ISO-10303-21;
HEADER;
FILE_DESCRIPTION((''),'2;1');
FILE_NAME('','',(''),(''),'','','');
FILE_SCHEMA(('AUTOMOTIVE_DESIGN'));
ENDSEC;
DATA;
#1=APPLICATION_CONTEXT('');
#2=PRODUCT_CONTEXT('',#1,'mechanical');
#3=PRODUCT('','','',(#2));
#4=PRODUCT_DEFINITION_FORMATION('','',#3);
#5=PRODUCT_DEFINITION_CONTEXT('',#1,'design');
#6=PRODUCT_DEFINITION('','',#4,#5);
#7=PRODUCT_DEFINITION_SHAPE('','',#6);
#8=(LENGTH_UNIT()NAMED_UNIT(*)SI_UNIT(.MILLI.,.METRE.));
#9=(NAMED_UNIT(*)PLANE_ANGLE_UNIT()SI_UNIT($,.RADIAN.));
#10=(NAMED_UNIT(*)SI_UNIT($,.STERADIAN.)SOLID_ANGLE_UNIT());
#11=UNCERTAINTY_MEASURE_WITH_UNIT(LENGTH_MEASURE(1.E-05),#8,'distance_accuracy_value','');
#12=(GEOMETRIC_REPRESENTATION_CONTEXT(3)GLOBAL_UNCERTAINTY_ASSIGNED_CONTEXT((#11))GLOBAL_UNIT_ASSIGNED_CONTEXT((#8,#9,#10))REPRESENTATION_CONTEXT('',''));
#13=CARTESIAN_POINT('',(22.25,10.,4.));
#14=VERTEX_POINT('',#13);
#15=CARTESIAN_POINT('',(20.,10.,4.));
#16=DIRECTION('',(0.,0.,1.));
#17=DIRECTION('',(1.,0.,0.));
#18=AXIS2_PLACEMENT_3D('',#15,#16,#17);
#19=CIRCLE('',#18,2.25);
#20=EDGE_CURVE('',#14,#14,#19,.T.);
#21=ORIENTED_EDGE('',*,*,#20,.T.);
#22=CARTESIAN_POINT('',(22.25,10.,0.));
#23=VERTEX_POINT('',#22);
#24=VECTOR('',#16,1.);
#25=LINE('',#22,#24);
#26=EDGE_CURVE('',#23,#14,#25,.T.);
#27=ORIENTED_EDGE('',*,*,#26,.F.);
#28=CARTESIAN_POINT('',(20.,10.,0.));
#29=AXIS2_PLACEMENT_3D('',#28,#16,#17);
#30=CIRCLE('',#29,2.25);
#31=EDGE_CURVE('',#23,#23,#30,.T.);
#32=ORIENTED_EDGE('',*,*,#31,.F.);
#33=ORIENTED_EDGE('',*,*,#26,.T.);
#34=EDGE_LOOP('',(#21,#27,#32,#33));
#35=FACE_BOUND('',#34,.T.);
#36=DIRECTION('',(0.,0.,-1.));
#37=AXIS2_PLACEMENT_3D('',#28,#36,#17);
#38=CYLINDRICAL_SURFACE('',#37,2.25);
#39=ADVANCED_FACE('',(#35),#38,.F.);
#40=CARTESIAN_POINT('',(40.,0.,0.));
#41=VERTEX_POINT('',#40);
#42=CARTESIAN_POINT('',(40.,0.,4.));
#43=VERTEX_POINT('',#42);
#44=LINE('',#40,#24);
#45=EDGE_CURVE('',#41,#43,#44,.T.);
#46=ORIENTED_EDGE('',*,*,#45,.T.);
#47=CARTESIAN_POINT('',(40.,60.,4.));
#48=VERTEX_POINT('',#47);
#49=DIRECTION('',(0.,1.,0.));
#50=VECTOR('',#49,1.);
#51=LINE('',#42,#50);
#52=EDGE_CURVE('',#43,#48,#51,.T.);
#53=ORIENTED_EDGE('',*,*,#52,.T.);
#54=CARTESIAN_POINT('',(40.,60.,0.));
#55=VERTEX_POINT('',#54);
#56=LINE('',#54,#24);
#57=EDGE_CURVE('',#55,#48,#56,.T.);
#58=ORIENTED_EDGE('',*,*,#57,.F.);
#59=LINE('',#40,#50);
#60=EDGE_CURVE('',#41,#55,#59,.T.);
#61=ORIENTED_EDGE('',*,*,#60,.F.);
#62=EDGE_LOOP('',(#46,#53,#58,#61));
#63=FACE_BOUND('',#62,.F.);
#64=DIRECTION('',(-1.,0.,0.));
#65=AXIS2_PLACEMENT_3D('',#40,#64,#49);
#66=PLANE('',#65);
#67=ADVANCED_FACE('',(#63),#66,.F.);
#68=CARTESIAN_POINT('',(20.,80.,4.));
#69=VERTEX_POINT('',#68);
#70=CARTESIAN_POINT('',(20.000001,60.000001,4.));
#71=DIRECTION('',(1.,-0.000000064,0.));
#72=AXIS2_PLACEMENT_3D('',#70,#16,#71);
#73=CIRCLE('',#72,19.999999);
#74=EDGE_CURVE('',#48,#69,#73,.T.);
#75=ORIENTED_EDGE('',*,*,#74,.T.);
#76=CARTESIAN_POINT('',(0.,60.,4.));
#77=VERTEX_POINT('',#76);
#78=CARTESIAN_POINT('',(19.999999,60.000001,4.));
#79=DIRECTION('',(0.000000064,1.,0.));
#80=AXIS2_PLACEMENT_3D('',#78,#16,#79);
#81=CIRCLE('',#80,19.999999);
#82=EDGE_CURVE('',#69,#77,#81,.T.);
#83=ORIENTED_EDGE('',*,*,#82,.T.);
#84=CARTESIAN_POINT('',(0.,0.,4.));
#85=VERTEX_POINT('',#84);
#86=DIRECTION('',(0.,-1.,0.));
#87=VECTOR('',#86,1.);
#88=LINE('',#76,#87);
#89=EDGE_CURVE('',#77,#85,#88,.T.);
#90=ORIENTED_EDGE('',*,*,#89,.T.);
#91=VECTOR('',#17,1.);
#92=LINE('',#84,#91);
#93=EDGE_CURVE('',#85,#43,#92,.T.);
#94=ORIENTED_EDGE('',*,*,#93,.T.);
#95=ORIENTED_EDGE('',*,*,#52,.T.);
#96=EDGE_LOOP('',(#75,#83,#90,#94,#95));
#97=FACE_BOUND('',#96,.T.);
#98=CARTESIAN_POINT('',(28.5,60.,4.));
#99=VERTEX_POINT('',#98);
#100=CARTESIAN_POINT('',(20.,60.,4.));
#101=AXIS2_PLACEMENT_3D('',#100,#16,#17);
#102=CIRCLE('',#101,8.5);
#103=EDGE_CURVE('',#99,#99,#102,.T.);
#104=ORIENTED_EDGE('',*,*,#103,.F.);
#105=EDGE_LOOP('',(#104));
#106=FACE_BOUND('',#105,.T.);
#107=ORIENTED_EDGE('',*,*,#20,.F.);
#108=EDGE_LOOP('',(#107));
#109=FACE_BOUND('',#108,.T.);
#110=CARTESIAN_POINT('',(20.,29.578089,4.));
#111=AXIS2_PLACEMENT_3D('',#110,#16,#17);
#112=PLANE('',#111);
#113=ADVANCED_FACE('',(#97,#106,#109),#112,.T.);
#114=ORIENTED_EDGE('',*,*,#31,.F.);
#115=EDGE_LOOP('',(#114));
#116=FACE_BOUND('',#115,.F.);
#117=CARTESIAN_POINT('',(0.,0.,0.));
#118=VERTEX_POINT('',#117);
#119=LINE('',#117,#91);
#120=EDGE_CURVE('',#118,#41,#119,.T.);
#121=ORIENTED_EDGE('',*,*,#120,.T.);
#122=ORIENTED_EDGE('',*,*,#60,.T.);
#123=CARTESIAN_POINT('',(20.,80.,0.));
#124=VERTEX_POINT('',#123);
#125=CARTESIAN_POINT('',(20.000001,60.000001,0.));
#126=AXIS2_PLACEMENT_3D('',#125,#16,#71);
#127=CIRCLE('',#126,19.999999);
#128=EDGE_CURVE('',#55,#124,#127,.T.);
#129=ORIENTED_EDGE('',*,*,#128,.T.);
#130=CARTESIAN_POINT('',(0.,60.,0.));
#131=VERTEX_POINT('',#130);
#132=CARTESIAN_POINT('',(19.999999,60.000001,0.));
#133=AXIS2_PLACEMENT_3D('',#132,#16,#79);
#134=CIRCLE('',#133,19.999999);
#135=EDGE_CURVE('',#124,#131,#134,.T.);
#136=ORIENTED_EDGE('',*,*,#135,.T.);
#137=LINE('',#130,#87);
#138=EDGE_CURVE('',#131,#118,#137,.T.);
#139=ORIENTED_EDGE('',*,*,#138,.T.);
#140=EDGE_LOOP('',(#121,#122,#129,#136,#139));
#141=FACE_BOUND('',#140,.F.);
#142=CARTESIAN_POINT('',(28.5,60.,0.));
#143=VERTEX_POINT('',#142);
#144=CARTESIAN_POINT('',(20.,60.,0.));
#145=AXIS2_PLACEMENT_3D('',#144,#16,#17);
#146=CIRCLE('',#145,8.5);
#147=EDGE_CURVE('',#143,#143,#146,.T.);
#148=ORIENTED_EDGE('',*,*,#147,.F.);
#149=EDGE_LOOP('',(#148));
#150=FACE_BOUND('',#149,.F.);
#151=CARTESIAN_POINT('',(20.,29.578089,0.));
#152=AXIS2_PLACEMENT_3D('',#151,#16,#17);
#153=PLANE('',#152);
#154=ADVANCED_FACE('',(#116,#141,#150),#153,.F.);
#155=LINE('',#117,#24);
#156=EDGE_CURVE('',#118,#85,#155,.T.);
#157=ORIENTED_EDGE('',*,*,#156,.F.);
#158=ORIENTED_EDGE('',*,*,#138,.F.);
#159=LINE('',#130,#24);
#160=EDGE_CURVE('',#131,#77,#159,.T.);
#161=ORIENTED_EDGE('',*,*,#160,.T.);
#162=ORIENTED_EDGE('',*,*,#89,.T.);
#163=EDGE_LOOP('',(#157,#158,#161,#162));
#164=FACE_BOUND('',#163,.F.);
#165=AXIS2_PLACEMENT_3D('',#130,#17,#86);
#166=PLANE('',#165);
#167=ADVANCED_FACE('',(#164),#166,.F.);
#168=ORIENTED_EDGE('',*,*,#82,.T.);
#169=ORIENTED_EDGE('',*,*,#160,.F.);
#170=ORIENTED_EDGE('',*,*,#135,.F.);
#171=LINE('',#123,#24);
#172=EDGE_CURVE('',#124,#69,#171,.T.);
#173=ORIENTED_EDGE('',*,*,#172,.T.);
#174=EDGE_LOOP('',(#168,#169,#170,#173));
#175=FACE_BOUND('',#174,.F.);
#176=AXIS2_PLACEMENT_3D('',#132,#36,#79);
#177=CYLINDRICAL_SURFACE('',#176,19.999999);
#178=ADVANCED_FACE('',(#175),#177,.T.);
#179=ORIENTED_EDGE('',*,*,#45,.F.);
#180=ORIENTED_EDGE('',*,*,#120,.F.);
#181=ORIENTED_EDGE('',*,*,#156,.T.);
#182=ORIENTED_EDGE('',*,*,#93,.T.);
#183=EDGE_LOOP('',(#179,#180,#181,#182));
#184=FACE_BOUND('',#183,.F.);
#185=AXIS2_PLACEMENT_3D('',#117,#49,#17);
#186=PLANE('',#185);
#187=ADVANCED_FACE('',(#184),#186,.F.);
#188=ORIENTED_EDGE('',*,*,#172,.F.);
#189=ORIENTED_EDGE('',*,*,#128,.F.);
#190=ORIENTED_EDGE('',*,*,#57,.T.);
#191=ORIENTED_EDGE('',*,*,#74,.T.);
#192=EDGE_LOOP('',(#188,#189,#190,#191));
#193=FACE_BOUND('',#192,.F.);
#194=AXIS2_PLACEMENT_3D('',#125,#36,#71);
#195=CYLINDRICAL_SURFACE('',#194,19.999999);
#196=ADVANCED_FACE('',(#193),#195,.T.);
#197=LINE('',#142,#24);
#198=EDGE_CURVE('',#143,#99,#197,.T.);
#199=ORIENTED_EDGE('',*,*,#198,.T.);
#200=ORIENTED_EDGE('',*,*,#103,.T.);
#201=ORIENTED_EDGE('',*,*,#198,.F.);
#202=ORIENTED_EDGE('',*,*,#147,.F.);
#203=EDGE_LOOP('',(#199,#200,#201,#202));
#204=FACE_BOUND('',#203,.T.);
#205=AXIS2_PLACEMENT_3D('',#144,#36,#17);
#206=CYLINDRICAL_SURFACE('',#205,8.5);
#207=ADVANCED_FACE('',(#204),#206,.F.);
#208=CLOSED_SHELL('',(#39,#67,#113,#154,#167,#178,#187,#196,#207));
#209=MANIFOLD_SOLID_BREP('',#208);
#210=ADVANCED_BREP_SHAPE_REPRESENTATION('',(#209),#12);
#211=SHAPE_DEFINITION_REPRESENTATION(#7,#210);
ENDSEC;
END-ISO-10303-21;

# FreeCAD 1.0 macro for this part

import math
import FreeCAD as App
import Part
import Sketcher
Q = App.Units.Quantity

doc = App.newDocument("Part")
body = doc.addObject("PartDesign::Body", "Body")

sketch1 = body.newObject("Sketcher::SketchObject", "Sketch")
sketch1.AttachmentSupport = (doc.getObject("XY_Plane"), [""])
sketch1.MapMode = "FlatFace"
sketch1.addGeometry([
    Part.LineSegment(App.Vector(0, 60, 0), App.Vector(0, 0, 0)),
    Part.LineSegment(App.Vector(0, 0, 0), App.Vector(40, 0, 0)),
    Part.LineSegment(App.Vector(40, 0, 0), App.Vector(40, 60, 0)),
    Part.ArcOfCircle(Part.Circle(App.Vector(20, 60, 0), App.Vector(0, 0, 1), 20), math.radians(0), math.radians(90)),
    Part.ArcOfCircle(Part.Circle(App.Vector(20, 60, 0), App.Vector(0, 0, 1), 20), math.radians(90), math.radians(180)),
    Part.Circle(App.Vector(20, 10, 0), App.Vector(0, 0, 1), 2.2),
    Part.Circle(App.Vector(20, 60, 0), App.Vector(0, 0, 1), 8.5),
], False)
sketch1.addConstraint([
    Sketcher.Constraint("Coincident", 0, 2, 1, 1),
    Sketcher.Constraint("Coincident", 1, 2, 2, 1),
    Sketcher.Constraint("Tangent", 2, 2, 3, 1),
    Sketcher.Constraint("Tangent", 3, 2, 4, 1),
    Sketcher.Constraint("Tangent", 4, 2, 0, 1),
    Sketcher.Constraint("Vertical", 0),
    Sketcher.Constraint("Horizontal", 1),
    Sketcher.Constraint("Vertical", 2),
    Sketcher.Constraint("Coincident", 0, 2, -1, 1),
    Sketcher.Constraint("Coincident", 6, 3, 3, 3),
    Sketcher.Constraint("Equal", 3, 4),
    Sketcher.Constraint("Vertical", 4, 3, 5, 3),
    Sketcher.Constraint("Vertical", 6, 3, 3, 2),
    Sketcher.Constraint("Diameter", 6, Q("17 mm")),
    Sketcher.Constraint("Radius", 3, Q("19.999999 mm")),
    Sketcher.Constraint("Diameter", 5, Q("4.5 mm")),
    Sketcher.Constraint("DistanceY", 0, 2, 0, 1, Q("60 mm")),
    Sketcher.Constraint("DistanceY", -1, 1, 5, 3, Q("10 mm")),
])
pad1 = body.newObject("PartDesign::Pad", "Pad")
pad1.Profile = sketch1
pad1.Length = 4

doc.recompute()
